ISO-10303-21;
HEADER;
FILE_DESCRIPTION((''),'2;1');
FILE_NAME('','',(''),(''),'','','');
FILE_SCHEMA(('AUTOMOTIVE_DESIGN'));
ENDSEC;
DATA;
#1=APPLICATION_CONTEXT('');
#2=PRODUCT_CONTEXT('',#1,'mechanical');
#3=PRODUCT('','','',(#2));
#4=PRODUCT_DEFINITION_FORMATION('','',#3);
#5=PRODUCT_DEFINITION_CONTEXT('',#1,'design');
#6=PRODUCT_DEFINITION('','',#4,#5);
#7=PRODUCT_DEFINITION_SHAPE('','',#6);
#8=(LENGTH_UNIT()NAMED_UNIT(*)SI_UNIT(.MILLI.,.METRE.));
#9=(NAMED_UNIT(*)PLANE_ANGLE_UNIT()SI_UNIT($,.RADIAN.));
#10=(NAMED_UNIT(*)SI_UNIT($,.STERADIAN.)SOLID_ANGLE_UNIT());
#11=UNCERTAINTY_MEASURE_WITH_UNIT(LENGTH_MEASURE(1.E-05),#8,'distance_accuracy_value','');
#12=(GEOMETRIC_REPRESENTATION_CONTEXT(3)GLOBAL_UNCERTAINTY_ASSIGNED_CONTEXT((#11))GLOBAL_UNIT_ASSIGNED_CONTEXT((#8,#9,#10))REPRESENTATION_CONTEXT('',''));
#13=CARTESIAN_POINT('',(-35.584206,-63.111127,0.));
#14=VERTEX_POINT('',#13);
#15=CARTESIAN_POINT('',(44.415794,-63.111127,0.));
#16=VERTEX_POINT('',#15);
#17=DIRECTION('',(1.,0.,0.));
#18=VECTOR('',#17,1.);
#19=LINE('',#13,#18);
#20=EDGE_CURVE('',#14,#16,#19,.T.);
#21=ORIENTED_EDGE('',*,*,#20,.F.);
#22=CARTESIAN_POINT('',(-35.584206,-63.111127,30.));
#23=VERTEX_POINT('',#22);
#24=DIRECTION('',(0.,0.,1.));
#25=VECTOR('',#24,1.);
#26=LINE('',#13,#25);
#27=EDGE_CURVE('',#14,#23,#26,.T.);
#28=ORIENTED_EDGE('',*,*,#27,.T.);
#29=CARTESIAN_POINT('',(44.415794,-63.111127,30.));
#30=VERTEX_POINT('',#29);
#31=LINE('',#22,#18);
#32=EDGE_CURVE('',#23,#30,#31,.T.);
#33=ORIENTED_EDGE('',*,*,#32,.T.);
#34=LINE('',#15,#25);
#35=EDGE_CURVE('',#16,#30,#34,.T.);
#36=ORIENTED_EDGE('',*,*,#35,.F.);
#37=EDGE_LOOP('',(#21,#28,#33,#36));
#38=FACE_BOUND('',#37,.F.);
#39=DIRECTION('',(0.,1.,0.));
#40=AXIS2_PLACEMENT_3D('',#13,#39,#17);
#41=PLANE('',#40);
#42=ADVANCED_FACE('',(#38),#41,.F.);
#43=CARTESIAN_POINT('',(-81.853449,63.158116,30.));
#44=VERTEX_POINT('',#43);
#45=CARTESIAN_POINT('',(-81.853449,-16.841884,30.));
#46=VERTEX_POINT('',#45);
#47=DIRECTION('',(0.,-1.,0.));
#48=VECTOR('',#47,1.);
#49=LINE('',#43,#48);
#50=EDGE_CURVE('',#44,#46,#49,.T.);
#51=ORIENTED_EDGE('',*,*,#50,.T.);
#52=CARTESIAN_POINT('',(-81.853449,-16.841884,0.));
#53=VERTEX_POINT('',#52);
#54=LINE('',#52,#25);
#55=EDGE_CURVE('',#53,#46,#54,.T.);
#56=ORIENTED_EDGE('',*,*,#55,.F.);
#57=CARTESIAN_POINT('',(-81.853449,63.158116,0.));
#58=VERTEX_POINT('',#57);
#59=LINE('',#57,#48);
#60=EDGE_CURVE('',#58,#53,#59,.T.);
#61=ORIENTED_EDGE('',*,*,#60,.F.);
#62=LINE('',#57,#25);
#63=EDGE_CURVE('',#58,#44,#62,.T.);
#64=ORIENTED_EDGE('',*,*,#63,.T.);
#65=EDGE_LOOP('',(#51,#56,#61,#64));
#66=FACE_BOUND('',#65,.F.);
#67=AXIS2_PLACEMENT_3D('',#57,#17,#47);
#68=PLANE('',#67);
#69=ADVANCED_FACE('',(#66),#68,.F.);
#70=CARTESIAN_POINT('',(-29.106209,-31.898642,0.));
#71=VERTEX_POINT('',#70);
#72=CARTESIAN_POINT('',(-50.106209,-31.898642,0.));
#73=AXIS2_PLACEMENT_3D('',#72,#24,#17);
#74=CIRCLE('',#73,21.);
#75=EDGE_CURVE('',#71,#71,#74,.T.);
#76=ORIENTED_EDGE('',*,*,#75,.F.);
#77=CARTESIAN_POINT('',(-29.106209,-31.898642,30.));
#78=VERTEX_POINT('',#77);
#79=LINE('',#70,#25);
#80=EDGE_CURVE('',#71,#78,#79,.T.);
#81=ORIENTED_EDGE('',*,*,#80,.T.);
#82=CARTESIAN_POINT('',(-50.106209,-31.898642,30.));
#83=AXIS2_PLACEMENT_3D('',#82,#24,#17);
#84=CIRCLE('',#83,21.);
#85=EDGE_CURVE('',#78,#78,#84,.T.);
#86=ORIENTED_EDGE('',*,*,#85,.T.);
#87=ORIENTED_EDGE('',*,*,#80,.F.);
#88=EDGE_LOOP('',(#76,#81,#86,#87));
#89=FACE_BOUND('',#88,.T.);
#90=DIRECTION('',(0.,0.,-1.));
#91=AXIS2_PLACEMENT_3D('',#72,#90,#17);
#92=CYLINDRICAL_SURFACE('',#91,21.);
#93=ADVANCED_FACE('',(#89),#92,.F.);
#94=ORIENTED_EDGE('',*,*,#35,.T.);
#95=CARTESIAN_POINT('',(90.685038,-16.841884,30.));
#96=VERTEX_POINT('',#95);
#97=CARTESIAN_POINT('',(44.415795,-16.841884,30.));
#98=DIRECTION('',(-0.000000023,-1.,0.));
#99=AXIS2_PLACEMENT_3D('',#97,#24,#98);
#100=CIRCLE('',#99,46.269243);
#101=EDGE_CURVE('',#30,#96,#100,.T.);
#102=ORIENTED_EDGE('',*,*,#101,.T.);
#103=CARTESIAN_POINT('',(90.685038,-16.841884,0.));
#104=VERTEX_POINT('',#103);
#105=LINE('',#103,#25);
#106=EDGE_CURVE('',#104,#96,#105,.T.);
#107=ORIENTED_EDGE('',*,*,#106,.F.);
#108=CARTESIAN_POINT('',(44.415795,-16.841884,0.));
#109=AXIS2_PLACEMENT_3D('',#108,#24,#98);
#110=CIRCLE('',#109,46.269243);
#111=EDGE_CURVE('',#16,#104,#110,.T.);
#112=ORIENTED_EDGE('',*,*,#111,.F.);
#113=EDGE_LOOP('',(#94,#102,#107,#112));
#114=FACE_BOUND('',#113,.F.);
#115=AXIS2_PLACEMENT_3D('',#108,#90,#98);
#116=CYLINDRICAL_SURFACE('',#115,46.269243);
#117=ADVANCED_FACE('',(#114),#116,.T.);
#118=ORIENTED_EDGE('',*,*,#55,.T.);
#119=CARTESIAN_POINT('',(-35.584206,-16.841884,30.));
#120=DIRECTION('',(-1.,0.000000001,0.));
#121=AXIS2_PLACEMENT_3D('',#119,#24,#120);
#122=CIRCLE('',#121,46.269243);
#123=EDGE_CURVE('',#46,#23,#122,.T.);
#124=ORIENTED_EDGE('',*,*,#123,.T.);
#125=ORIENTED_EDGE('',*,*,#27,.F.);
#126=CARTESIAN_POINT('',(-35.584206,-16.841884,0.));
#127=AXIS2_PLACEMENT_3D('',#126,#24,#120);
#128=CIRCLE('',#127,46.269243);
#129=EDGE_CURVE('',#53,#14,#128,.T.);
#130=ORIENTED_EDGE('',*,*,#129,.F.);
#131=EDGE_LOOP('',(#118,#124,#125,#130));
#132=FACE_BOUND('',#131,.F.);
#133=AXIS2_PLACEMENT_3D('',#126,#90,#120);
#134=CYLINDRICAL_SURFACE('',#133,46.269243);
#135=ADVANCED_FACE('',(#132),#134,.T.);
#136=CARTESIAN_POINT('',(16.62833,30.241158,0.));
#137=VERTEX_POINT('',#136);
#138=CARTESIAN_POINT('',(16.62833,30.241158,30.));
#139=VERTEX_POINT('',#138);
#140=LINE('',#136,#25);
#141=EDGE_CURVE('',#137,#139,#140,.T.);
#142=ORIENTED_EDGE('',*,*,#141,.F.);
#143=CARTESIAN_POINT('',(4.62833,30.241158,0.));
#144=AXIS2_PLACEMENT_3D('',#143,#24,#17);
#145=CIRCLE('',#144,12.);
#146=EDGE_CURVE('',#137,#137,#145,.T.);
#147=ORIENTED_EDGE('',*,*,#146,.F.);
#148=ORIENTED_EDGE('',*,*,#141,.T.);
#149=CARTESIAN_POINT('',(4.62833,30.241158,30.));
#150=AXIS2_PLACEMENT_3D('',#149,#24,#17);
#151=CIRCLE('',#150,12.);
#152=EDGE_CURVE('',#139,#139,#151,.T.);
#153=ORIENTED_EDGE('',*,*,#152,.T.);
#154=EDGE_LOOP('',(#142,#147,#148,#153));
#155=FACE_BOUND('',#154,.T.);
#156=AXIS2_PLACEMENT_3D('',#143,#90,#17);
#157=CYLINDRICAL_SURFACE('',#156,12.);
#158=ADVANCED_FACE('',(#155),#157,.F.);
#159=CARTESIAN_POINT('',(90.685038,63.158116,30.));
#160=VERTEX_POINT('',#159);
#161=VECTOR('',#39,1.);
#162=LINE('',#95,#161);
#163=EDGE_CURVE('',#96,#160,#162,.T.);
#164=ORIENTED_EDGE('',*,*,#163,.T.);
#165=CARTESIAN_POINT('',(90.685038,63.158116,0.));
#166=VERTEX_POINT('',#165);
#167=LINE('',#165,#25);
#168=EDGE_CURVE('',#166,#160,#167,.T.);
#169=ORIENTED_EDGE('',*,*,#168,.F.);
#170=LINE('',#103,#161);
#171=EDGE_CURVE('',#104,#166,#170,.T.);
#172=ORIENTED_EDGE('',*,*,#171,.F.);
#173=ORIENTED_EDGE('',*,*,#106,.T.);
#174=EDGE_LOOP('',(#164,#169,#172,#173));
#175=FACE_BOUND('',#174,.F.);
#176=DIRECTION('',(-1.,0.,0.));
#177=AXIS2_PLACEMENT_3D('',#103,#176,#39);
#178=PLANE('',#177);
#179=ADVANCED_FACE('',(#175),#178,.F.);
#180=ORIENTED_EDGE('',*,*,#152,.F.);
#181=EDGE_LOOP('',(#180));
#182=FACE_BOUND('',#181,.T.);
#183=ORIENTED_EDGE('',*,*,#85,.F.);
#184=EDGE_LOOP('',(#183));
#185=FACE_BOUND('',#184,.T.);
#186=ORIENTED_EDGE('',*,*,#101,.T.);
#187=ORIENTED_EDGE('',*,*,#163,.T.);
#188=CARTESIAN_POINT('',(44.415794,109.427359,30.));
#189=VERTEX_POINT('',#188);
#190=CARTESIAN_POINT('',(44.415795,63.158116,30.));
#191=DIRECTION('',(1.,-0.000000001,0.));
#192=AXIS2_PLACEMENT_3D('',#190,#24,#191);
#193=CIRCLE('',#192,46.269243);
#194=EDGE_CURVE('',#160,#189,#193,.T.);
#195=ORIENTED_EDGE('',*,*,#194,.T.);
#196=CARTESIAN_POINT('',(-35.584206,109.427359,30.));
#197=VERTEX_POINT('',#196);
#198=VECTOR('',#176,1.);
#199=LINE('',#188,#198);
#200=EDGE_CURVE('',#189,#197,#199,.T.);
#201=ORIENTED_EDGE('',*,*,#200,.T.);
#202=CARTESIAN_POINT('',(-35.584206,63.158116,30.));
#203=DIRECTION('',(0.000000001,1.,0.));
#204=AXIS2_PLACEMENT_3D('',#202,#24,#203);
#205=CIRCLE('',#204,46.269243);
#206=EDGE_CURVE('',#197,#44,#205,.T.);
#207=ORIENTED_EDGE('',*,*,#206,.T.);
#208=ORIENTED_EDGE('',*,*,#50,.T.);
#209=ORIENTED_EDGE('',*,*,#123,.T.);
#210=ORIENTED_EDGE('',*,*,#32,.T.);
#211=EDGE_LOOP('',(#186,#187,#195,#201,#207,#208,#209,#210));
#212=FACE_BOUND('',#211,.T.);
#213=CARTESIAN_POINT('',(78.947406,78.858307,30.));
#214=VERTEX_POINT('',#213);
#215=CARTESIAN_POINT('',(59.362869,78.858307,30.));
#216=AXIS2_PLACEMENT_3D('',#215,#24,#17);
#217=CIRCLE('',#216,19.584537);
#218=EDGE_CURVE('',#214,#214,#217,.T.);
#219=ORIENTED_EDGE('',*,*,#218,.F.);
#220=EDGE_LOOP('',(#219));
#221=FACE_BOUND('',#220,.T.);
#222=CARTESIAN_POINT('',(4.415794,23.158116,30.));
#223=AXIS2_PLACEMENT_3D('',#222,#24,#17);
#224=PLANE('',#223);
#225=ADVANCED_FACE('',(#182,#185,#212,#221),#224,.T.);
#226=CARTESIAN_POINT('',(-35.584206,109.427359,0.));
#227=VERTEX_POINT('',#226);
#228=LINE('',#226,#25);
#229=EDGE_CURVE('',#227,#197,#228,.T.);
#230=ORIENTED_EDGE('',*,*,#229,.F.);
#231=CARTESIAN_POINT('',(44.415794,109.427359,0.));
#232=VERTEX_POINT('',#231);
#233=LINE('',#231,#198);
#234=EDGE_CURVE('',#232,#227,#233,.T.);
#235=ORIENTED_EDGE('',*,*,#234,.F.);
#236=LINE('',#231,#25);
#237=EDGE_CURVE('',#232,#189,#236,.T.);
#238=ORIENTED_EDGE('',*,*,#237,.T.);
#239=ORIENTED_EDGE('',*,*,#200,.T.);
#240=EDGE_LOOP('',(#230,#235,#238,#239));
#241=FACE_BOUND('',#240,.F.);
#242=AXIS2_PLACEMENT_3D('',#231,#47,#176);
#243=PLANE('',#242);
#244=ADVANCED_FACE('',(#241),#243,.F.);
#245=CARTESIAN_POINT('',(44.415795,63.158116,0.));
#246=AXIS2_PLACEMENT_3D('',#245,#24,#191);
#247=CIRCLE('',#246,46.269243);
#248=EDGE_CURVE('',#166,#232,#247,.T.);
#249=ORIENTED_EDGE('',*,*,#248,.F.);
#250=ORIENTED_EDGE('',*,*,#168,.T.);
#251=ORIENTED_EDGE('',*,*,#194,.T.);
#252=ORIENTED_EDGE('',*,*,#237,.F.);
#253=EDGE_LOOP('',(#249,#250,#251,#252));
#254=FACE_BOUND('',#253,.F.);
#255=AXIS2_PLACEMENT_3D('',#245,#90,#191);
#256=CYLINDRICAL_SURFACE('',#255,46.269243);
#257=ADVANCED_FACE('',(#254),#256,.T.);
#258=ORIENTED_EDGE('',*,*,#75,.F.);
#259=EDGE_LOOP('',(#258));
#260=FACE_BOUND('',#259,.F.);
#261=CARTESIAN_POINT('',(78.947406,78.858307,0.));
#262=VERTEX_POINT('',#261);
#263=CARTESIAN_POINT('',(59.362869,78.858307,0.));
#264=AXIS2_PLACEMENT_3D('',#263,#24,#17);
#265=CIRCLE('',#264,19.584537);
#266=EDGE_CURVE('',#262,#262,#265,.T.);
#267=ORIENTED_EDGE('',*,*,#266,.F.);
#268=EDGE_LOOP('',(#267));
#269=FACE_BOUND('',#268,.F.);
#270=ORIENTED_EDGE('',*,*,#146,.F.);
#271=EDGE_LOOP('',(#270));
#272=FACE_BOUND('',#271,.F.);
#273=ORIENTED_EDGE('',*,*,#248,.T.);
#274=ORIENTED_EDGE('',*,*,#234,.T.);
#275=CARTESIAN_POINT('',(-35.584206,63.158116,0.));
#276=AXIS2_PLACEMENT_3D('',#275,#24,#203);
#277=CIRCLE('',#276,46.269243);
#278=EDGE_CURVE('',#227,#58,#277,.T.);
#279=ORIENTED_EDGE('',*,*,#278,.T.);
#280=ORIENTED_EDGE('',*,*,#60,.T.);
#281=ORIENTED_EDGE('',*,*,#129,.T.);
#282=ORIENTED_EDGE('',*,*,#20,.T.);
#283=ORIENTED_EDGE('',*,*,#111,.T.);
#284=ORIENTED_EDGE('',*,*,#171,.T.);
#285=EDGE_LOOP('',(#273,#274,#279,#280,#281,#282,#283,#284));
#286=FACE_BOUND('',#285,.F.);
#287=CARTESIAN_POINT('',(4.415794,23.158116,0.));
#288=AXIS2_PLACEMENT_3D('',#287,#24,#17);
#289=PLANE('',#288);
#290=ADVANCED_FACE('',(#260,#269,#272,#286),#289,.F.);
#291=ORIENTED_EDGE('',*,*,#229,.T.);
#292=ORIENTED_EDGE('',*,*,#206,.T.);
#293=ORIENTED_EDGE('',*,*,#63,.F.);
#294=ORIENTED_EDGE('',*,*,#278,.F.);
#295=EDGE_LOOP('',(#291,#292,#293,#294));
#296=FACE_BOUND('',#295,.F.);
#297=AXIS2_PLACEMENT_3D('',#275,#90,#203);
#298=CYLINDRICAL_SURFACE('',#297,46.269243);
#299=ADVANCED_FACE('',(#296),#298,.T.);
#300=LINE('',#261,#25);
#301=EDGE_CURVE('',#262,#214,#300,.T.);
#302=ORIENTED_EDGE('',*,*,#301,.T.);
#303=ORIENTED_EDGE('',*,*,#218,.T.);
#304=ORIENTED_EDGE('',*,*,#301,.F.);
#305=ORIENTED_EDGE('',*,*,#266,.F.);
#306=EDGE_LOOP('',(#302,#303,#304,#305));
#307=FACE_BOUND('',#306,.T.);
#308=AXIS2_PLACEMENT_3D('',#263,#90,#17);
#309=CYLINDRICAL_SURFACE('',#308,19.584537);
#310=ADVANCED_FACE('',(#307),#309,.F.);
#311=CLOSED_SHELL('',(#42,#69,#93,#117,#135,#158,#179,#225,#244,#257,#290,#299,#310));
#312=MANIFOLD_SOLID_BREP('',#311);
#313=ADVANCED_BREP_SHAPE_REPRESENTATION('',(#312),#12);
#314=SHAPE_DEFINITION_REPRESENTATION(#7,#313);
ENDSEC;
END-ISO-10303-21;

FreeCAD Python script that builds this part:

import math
import FreeCAD as App
import Part
import Sketcher

V = App.Vector
Q = App.Units.Quantity

doc = App.newDocument("Part")
body = doc.addObject("PartDesign::Body", "Body")

sketch1 = body.newObject("Sketcher::SketchObject", "Sketch")
sketch1.AttachmentSupport = (doc.getObject("XY_Plane"), [""])
sketch1.MapMode = "FlatFace"
sketch1.addGeometry(Part.LineSegment(V(-36, -63, 0), V(44, -63, 0)), False)
sketch1.addGeometry(Part.ArcOfCircle(Part.Circle(V(44, -17, 0), V(0, 0, 1), 46), math.radians(-90), math.radians(0)), False)
sketch1.addGeometry(Part.LineSegment(V(91, -17, 0), V(91, 63, 0)), False)
sketch1.addGeometry(Part.ArcOfCircle(Part.Circle(V(44, 63, 0), V(0, 0, 1), 46), math.radians(0), math.radians(90)), False)
sketch1.addGeometry(Part.LineSegment(V(44, 109, 0), V(-36, 109, 0)), False)
sketch1.addGeometry(Part.ArcOfCircle(Part.Circle(V(-36, 63, 0), V(0, 0, 1), 46), math.radians(90), math.radians(180)), False)
sketch1.addGeometry(Part.LineSegment(V(-82, 63, 0), V(-82, -17, 0)), False)
sketch1.addGeometry(Part.ArcOfCircle(Part.Circle(V(-36, -17, 0), V(0, 0, 1), 46), math.radians(180), math.radians(270)), False)
sketch1.addGeometry(Part.Circle(V(-50, -32, 0), V(0, 0, 1), 21), False)
sketch1.addGeometry(Part.Circle(V(5, 30, 0), V(0, 0, 1), 12), False)
sketch1.addGeometry(Part.Circle(V(59, 79, 0), V(0, 0, 1), 20), False)
sketch1.addConstraint(Sketcher.Constraint("Tangent", 0, 2, 1, 1))
sketch1.addConstraint(Sketcher.Constraint("Tangent", 1, 2, 2, 1))
sketch1.addConstraint(Sketcher.Constraint("Tangent", 2, 2, 3, 1))
sketch1.addConstraint(Sketcher.Constraint("Tangent", 3, 2, 4, 1))
sketch1.addConstraint(Sketcher.Constraint("Tangent", 4, 2, 5, 1))
sketch1.addConstraint(Sketcher.Constraint("Tangent", 5, 2, 6, 1))
sketch1.addConstraint(Sketcher.Constraint("Tangent", 6, 2, 7, 1))
sketch1.addConstraint(Sketcher.Constraint("Tangent", 7, 2, 0, 1))
sketch1.addConstraint(Sketcher.Constraint("Horizontal", 0))
sketch1.addConstraint(Sketcher.Constraint("Vertical", 2))
sketch1.addConstraint(Sketcher.Constraint("Horizontal", 4))
sketch1.addConstraint(Sketcher.Constraint("Vertical", 6))
sketch1.addConstraint(Sketcher.Constraint("Equal", 1, 3))
sketch1.addConstraint(Sketcher.Constraint("Equal", 3, 5))
sketch1.addConstraint(Sketcher.Constraint("Equal", 5, 7))
sketch1.addConstraint(Sketcher.Constraint("Equal", 4, 2))
sketch1.addConstraint(Sketcher.Constraint("Diameter", 8, Q("42 mm")))
sketch1.addConstraint(Sketcher.Constraint("Diameter", 9, Q("24 mm")))
sketch1.addConstraint(Sketcher.Constraint("DistanceX", 0, 1, 0, 2, Q("80 mm")))
sketch1.addConstraint(Sketcher.Constraint("Diameter", 10, Q("39.169074 mm")))
sketch1.addConstraint(Sketcher.Constraint("Radius", 1, Q("46.269243 mm")))
sketch1.addConstraint(Sketcher.Constraint("DistanceY", 8, 3, 9, 3, Q("62.1398 mm")))
sketch1.addConstraint(Sketcher.Constraint("DistanceY", 9, 3, 3, 2, Q("79.186201 mm")))
sketch1.addConstraint(Sketcher.Constraint("DistanceX", 8, 3, -1, 1, Q("50.106209 mm")))
sketch1.addConstraint(Sketcher.Constraint("DistanceY", 8, 3, -1, 1, Q("31.898642 mm")))
sketch1.addConstraint(Sketcher.Constraint("DistanceX", -1, 1, 9, 3, Q("4.62833 mm")))
sketch1.addConstraint(Sketcher.Constraint("DistanceX", -1, 1, 10, 3, Q("59.362869 mm")))
sketch1.addConstraint(Sketcher.Constraint("DistanceX", -1, 1, 1, 2, Q("90.685038 mm")))
sketch1.addConstraint(Sketcher.Constraint("DistanceY", 3, 3, 10, 3, Q("15.700191 mm")))
pad1 = body.newObject("PartDesign::Pad", "Pad")
pad1.Profile = sketch1
pad1.Length = 30

sketch2 = body.newObject("Sketcher::SketchObject", "Sketch001")
sketch2.AttachmentSupport = (doc.getObject("XY_Plane"), [""])
sketch2.MapMode = "FlatFace"
sketch2.addGeometry(Part.LineSegment(V(-36, -63, 0), V(44, -63, 0)), False)
sketch2.addGeometry(Part.ArcOfCircle(Part.Circle(V(44, -17, 0), V(0, 0, 1), 46), math.radians(-90), math.radians(0)), False)
sketch2.addGeometry(Part.LineSegment(V(91, -17, 0), V(91, 63, 0)), False)
sketch2.addGeometry(Part.ArcOfCircle(Part.Circle(V(44, 63, 0), V(0, 0, 1), 46), math.radians(0), math.radians(90)), False)
sketch2.addGeometry(Part.LineSegment(V(44, 109, 0), V(-36, 109, 0)), False)
sketch2.addGeometry(Part.ArcOfCircle(Part.Circle(V(-36, 63, 0), V(0, 0, 1), 46), math.radians(90), math.radians(180)), False)
sketch2.addGeometry(Part.LineSegment(V(-82, 63, 0), V(-82, -17, 0)), False)
sketch2.addGeometry(Part.ArcOfCircle(Part.Circle(V(-36, -17, 0), V(0, 0, 1), 46), math.radians(180), math.radians(270)), False)
sketch2.addGeometry(Part.Circle(V(-50, -32, 0), V(0, 0, 1), 21), False)
sketch2.addGeometry(Part.Circle(V(5, 30, 0), V(0, 0, 1), 12), False)
sketch2.addGeometry(Part.Circle(V(59, 79, 0), V(0, 0, 1), 20), False)
sketch2.addConstraint(Sketcher.Constraint("Tangent", 0, 2, 1, 1))
sketch2.addConstraint(Sketcher.Constraint("Tangent", 1, 2, 2, 1))
sketch2.addConstraint(Sketcher.Constraint("Tangent", 2, 2, 3, 1))
sketch2.addConstraint(Sketcher.Constraint("Tangent", 3, 2, 4, 1))
sketch2.addConstraint(Sketcher.Constraint("Tangent", 4, 2, 5, 1))
sketch2.addConstraint(Sketcher.Constraint("Tangent", 5, 2, 6, 1))
sketch2.addConstraint(Sketcher.Constraint("Tangent", 6, 2, 7, 1))
sketch2.addConstraint(Sketcher.Constraint("Tangent", 7, 2, 0, 1))
sketch2.addConstraint(Sketcher.Constraint("Horizontal", 0))
sketch2.addConstraint(Sketcher.Constraint("Vertical", 2))
sketch2.addConstraint(Sketcher.Constraint("Horizontal", 4))
sketch2.addConstraint(Sketcher.Constraint("Vertical", 6))
sketch2.addConstraint(Sketcher.Constraint("Equal", 1, 3))
sketch2.addConstraint(Sketcher.Constraint("Equal", 3, 5))
sketch2.addConstraint(Sketcher.Constraint("Equal", 5, 7))
sketch2.addConstraint(Sketcher.Constraint("Equal", 4, 2))
sketch2.addConstraint(Sketcher.Constraint("Diameter", 8, Q("42 mm")))
sketch2.addConstraint(Sketcher.Constraint("Diameter", 9, Q("24 mm")))
sketch2.addConstraint(Sketcher.Constraint("DistanceX", 0, 1, 0, 2, Q("80 mm")))
sketch2.addConstraint(Sketcher.Constraint("Diameter", 10, Q("39.169074 mm")))
sketch2.addConstraint(Sketcher.Constraint("Radius", 1, Q("46.269243 mm")))
sketch2.addConstraint(Sketcher.Constraint("DistanceY", 8, 3, 9, 3, Q("62.1398 mm")))
sketch2.addConstraint(Sketcher.Constraint("DistanceY", 9, 3, 3, 2, Q("79.186201 mm")))
sketch2.addConstraint(Sketcher.Constraint("DistanceX", 8, 3, -1, 1, Q("50.106209 mm")))
sketch2.addConstraint(Sketcher.Constraint("DistanceY", 8, 3, -1, 1, Q("31.898642 mm")))
sketch2.addConstraint(Sketcher.Constraint("DistanceX", -1, 1, 9, 3, Q("4.62833 mm")))
sketch2.addConstraint(Sketcher.Constraint("DistanceX", -1, 1, 10, 3, Q("59.362869 mm")))
sketch2.addConstraint(Sketcher.Constraint("DistanceX", -1, 1, 1, 2, Q("90.685038 mm")))
sketch2.addConstraint(Sketcher.Constraint("DistanceY", 3, 3, 10, 3, Q("15.700191 mm")))
pad2 = body.newObject("PartDesign::Pad", "Pad001")
pad2.Profile = sketch2
pad2.Length = 30

doc.recompute()
